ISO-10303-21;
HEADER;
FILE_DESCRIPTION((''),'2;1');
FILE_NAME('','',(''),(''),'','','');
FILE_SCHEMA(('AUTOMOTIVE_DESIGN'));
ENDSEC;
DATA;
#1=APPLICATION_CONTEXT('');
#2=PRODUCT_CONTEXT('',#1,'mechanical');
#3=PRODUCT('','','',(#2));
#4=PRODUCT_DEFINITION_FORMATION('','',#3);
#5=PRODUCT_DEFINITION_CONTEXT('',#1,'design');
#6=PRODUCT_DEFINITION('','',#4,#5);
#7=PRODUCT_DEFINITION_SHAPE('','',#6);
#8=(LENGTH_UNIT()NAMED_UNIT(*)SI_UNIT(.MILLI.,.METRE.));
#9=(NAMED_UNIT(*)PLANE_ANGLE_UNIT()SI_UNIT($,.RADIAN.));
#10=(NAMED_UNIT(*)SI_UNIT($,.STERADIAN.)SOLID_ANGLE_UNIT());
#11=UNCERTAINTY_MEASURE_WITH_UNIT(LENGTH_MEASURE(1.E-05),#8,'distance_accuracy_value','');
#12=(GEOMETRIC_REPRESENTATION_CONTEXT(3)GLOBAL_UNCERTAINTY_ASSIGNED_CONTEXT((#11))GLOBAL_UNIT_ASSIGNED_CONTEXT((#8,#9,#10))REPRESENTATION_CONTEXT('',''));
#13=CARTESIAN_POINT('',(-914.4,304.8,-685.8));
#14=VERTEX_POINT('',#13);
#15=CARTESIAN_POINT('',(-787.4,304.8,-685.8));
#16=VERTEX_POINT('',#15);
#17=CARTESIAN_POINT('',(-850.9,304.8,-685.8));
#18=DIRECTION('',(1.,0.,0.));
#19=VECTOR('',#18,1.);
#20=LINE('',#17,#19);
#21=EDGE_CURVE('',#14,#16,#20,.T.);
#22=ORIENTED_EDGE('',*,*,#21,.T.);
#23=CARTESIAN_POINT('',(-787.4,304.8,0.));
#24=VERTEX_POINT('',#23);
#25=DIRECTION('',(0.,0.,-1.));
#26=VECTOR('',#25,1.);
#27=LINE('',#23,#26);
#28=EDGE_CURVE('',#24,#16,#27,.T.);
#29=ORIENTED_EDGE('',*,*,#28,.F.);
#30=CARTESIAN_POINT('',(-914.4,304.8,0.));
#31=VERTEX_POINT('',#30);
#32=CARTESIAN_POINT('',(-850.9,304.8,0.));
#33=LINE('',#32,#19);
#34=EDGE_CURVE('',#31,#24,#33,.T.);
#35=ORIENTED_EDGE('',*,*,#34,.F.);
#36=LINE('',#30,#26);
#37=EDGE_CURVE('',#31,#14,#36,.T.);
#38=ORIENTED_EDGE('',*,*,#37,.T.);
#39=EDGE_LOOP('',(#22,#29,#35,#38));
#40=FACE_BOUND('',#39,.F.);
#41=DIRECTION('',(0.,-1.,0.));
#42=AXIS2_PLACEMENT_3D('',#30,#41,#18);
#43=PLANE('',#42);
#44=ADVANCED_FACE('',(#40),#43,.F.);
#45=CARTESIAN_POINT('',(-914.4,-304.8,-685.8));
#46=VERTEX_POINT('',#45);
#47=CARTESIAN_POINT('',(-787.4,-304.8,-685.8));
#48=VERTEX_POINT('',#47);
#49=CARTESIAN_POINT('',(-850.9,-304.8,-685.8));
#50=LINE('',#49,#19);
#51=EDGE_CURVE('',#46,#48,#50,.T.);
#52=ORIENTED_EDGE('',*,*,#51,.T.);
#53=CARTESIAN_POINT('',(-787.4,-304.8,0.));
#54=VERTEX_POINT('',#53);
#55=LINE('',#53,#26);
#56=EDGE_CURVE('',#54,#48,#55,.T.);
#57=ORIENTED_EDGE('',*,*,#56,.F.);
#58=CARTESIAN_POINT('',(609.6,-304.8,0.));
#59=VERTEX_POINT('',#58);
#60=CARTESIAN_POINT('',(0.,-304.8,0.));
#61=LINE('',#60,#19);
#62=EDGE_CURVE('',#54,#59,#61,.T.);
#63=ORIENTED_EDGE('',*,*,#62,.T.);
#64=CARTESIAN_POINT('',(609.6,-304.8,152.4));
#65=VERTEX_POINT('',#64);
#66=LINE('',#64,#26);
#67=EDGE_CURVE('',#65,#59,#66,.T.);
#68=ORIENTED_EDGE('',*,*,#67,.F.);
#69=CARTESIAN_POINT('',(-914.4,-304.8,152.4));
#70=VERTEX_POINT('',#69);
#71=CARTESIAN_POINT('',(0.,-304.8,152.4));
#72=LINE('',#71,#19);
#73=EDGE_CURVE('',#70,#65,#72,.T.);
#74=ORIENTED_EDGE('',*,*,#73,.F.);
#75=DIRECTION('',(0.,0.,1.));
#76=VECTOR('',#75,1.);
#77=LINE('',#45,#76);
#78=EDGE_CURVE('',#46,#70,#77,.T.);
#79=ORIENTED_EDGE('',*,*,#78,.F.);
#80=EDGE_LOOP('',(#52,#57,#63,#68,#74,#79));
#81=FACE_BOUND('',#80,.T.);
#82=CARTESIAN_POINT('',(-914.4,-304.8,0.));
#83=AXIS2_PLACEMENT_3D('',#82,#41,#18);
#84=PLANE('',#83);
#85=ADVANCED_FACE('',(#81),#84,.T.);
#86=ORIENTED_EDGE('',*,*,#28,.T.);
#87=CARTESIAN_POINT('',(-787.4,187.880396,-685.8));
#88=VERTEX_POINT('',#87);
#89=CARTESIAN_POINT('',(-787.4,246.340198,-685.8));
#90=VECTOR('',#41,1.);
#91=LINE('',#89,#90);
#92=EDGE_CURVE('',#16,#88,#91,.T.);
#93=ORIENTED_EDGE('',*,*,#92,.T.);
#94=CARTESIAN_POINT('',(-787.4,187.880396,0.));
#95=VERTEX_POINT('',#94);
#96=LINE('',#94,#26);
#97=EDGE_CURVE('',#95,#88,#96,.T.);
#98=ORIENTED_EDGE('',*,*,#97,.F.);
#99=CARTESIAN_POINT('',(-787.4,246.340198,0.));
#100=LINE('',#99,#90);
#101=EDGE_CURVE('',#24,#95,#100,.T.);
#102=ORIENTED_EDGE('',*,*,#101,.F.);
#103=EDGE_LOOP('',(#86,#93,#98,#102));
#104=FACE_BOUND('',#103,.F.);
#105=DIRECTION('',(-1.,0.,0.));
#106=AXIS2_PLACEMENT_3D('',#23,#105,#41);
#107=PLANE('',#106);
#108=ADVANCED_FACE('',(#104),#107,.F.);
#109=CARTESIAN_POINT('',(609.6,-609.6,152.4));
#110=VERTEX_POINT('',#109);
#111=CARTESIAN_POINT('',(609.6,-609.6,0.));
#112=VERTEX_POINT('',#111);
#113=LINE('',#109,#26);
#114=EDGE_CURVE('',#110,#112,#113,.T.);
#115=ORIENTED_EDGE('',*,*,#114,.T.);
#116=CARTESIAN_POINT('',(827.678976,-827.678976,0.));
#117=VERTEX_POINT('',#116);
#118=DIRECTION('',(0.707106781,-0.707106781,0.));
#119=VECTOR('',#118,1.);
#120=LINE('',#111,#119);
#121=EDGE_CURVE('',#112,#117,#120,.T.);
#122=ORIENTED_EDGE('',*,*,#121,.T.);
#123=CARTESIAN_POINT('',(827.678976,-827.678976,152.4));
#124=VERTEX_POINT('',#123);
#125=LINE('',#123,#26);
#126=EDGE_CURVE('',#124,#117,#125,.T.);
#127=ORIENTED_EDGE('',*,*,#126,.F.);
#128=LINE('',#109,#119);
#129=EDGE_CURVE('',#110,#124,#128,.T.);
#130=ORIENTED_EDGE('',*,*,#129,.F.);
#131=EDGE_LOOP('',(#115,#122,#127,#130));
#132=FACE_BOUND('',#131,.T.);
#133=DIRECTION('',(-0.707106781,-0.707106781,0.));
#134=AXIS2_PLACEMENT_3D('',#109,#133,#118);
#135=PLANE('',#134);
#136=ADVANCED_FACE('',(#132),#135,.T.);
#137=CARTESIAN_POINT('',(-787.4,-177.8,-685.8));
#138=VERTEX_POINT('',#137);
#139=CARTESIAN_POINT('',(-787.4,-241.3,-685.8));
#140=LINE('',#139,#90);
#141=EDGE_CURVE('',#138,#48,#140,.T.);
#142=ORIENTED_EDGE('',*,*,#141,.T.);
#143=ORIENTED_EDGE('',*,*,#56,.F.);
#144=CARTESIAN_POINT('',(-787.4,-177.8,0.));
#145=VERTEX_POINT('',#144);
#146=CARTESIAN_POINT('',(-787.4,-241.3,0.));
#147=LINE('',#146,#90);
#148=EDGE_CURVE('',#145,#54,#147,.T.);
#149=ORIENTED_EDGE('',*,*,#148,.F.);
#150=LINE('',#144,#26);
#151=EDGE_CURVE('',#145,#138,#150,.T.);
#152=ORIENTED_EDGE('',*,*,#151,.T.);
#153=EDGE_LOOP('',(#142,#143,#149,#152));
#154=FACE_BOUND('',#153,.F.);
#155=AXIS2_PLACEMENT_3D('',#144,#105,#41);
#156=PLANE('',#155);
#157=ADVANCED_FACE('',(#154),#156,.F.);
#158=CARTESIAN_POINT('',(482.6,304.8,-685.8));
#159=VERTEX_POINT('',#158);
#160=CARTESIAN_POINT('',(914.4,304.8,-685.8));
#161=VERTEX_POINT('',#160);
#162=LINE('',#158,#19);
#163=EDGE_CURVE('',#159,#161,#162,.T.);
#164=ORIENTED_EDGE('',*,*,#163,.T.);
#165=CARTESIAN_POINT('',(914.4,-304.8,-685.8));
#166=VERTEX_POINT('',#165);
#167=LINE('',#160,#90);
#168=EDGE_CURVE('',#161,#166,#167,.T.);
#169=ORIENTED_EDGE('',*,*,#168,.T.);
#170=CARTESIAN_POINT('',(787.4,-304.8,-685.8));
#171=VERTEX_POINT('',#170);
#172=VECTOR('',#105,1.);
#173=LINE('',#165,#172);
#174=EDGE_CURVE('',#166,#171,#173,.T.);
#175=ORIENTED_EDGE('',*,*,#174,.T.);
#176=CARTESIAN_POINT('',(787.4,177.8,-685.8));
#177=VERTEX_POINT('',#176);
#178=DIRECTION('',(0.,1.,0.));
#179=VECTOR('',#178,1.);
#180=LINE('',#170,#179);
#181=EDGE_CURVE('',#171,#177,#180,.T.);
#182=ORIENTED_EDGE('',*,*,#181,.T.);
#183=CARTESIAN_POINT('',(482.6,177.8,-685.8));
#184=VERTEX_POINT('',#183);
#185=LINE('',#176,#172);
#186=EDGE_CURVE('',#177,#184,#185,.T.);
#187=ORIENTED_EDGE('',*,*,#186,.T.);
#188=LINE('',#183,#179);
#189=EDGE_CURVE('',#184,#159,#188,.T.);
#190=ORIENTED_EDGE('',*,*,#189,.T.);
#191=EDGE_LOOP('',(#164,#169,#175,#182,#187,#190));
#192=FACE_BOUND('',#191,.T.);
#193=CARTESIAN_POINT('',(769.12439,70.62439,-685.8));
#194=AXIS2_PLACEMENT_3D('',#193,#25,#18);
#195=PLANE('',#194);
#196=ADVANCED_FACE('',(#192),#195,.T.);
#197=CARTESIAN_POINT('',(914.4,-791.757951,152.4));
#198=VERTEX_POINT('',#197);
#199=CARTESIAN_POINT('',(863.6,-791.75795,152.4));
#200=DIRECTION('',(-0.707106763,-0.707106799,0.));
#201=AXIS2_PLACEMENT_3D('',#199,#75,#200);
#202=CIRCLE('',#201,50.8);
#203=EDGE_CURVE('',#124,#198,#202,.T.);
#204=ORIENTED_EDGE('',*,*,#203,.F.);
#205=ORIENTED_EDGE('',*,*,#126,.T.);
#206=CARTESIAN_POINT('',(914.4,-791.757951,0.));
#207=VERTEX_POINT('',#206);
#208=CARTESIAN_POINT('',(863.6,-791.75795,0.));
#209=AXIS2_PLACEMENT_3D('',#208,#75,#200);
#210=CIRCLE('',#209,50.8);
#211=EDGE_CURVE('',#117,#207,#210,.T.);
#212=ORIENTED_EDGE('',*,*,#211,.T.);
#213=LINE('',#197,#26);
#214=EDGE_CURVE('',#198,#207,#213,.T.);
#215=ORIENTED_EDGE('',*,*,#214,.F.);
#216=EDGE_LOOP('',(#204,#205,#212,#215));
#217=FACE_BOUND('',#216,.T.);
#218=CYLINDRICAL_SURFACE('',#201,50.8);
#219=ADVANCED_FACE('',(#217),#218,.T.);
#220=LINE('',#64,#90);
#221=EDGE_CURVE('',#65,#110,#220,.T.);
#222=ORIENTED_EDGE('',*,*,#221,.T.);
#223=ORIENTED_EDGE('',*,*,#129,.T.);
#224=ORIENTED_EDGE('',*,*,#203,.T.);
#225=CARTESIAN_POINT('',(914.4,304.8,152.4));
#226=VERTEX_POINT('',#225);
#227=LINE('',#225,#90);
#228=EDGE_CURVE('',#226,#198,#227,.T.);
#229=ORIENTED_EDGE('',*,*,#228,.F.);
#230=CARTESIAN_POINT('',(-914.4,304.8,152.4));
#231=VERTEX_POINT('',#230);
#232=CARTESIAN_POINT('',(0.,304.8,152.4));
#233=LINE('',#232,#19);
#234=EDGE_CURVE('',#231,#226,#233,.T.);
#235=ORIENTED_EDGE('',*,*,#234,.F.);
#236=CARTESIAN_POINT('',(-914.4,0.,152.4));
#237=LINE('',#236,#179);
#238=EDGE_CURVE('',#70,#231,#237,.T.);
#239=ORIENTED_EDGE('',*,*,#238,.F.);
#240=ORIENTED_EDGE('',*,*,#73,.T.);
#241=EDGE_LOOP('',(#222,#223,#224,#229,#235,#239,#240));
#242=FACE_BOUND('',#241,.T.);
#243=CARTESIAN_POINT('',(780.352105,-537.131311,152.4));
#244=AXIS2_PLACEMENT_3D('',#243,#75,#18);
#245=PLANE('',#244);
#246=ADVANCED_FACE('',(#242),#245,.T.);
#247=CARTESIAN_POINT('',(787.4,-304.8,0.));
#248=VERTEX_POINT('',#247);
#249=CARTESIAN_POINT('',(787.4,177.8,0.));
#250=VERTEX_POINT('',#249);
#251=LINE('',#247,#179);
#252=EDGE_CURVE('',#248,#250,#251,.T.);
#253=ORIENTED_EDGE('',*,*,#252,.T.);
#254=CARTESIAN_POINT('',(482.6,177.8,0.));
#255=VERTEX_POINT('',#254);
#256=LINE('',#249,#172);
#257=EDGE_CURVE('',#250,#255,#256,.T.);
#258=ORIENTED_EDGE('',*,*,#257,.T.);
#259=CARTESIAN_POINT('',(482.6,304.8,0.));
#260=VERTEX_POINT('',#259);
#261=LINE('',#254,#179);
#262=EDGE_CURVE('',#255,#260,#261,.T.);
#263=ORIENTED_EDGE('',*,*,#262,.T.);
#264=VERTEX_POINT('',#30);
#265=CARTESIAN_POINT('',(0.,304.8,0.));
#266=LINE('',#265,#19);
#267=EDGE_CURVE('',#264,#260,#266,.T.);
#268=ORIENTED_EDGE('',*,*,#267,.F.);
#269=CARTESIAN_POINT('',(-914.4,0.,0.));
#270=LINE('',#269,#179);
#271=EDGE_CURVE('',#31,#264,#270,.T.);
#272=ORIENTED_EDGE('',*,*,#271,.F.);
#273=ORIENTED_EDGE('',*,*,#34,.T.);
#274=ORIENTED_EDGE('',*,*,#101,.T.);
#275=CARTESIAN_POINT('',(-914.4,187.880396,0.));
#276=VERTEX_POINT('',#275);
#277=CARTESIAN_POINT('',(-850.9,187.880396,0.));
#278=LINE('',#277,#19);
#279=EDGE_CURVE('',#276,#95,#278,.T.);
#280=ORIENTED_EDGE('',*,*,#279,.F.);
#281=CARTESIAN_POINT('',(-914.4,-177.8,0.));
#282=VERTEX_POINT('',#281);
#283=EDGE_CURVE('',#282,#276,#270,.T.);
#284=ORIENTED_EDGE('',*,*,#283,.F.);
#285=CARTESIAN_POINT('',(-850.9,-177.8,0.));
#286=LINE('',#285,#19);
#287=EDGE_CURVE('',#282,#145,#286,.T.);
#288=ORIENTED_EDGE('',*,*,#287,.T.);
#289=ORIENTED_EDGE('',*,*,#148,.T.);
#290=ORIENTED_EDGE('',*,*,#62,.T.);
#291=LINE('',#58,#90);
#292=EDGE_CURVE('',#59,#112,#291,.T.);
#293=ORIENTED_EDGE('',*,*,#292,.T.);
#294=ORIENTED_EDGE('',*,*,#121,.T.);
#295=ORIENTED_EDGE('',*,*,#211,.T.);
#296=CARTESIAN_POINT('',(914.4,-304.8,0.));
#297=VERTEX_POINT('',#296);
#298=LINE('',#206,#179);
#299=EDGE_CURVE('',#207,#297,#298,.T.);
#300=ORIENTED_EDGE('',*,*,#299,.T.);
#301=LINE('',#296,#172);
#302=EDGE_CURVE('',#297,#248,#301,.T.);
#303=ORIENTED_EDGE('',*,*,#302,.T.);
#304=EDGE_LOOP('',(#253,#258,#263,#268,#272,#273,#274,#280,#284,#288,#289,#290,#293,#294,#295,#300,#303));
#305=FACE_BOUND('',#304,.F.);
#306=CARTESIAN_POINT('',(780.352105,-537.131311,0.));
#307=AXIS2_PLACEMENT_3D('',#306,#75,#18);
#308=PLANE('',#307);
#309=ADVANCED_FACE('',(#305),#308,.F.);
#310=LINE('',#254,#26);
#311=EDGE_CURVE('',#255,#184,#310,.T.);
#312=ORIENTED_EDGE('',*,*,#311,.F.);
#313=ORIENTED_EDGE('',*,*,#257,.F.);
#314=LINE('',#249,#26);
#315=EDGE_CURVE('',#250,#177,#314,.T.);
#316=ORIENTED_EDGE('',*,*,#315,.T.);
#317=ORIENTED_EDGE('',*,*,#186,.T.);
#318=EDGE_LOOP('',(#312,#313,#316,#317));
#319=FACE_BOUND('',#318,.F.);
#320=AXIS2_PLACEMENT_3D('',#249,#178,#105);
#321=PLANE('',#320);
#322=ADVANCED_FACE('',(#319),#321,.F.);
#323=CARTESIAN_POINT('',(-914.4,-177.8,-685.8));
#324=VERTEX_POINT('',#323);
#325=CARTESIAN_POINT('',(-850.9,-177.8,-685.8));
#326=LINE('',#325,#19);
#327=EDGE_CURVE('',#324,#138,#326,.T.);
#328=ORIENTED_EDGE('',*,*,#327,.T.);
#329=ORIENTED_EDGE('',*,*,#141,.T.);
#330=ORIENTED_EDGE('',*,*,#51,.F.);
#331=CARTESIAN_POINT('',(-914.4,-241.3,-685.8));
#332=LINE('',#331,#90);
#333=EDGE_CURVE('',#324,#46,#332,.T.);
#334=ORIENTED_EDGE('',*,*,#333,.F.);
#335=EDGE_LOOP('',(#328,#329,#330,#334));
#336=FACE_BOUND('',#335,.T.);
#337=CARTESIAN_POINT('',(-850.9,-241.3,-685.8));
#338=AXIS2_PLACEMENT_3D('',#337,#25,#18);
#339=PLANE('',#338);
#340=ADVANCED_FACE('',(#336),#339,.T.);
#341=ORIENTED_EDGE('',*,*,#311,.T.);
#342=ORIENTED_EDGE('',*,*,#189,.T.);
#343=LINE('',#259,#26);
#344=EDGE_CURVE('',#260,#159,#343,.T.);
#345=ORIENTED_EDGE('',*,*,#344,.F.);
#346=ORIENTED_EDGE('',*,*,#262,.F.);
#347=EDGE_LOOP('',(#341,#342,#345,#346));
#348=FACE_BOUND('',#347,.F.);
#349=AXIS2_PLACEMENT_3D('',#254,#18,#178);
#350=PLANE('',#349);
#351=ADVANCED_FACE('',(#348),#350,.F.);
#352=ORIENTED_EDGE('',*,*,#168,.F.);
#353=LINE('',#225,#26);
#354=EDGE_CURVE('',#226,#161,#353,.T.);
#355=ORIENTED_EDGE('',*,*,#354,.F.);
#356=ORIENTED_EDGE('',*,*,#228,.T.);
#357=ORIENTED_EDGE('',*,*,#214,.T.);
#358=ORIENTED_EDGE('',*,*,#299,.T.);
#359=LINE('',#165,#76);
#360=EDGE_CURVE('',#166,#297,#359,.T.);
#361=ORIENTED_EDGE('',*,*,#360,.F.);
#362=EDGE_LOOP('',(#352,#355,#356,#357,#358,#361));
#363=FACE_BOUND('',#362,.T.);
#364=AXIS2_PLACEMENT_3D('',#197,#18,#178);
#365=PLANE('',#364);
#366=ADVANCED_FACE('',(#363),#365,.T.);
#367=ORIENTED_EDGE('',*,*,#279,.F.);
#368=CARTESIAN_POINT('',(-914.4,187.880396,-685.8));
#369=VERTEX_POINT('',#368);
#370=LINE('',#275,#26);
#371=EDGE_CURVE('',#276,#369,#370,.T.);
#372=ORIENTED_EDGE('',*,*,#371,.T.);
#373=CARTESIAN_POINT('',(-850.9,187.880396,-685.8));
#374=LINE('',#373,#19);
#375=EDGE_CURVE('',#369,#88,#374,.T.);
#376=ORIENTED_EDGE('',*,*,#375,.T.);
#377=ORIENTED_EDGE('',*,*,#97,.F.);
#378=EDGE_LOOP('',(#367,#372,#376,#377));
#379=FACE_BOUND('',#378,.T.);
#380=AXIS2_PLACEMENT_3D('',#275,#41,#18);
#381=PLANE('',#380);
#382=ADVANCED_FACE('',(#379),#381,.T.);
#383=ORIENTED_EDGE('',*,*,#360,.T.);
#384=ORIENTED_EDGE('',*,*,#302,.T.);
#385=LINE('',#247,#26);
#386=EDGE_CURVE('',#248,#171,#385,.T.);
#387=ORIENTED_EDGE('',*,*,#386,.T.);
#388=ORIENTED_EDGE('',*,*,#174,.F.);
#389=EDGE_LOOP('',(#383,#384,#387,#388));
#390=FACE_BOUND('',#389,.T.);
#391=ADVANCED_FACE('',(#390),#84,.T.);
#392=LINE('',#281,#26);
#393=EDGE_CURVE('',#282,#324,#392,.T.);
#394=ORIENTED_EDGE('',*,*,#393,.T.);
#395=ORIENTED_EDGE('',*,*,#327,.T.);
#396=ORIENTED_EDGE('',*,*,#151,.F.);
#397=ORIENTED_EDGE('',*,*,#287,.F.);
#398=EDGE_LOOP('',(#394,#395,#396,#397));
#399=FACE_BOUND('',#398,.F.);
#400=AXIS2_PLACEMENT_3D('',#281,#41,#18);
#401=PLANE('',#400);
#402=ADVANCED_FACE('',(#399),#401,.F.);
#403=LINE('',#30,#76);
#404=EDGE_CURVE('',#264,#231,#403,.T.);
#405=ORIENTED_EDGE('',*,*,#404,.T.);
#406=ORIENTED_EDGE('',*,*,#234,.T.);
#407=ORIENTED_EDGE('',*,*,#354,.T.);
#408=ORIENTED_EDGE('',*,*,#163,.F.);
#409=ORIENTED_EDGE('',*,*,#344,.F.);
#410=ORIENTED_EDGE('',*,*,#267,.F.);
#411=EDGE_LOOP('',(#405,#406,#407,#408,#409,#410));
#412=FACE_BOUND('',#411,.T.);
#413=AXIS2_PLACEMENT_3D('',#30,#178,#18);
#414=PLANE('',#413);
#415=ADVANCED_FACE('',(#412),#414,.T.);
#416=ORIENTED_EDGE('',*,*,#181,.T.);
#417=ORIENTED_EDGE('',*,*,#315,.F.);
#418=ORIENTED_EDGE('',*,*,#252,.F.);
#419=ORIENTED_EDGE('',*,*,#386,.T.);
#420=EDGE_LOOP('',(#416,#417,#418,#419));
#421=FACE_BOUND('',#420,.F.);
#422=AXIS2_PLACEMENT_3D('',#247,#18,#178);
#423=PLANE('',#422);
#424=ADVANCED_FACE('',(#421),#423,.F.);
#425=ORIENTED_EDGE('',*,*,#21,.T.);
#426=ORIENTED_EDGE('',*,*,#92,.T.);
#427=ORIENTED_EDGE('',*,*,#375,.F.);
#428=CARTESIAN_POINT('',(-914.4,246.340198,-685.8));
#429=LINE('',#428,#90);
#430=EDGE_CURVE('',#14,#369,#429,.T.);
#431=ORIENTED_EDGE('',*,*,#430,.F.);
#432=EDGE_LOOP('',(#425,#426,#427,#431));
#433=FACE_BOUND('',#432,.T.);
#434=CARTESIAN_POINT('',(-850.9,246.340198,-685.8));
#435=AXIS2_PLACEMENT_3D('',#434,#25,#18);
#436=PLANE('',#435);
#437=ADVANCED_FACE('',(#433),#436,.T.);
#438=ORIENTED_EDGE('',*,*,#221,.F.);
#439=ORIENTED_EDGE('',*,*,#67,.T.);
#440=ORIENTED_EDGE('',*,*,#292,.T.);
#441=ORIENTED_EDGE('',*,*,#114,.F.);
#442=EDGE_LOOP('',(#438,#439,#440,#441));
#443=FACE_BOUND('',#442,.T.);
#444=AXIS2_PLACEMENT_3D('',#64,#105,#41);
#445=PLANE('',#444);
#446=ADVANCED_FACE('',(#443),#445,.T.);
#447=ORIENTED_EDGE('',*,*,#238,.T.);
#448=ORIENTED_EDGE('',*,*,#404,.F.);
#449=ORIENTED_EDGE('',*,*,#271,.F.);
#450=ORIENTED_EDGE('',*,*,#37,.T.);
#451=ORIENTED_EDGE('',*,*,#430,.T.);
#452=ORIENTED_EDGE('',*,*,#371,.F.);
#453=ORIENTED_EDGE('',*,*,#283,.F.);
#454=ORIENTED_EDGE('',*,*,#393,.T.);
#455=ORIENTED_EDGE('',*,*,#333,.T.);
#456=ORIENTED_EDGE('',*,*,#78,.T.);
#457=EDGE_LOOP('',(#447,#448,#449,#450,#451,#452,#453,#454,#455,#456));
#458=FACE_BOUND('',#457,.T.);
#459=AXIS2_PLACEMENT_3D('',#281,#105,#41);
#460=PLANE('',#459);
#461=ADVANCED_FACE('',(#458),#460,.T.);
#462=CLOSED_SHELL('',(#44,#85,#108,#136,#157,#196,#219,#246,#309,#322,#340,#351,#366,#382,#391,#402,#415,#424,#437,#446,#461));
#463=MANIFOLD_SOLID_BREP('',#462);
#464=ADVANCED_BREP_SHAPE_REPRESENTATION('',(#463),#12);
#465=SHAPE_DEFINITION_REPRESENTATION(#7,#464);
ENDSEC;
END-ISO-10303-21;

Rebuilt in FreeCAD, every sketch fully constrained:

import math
import FreeCAD as App
import Part
import Sketcher
from FreeCAD import Vector
Q = App.Units.Quantity


def add_polygon(sketch, points):
    """Adds a closed chain of lines whose ends are joined by coincident constraints."""
    first, n = sketch.GeometryCount, len(points)
    for a, b in zip(points, points[1:] + points[:1]):
        sketch.addGeometry(Part.LineSegment(App.Vector(*a, 0), App.Vector(*b, 0)), False)
    for i in range(n):
        sketch.addConstraint(Sketcher.Constraint("Coincident", first + i, 2, first + (i + 1) % n, 1))

doc = App.newDocument("Part")
body = doc.addObject("PartDesign::Body", "Body")

# Sketch on XY plane
sketch1 = body.newObject("Sketcher::SketchObject", "Sketch")
sketch1.AttachmentSupport = (doc.getObject("XY_Plane"), [""])
sketch1.MapMode = "FlatFace"
add_polygon(sketch1, [(-914.4, 304.8), (-914.4, -304.8), (914.4, -304.8), (914.4, 304.8)])  # lines 0-3
sketch1.addConstraint([
    Sketcher.Constraint("Vertical", 0),
    Sketcher.Constraint("Horizontal", 1),
    Sketcher.Constraint("Vertical", 2),
    Sketcher.Constraint("Horizontal", 3),
    Sketcher.Constraint("Symmetric", 0, 2, 2, 2, -1, 1),
    Sketcher.Constraint("DistanceX", 1, 1, 1, 2, Q("72 in")),
    Sketcher.Constraint("DistanceY", 0, 2, 0, 1, Q("24 in")),
])
pad1 = body.newObject("PartDesign::Pad", "Pad")
pad1.Profile = sketch1
pad1.Length = Q("6 in")

# Sketch on XY plane
sketch2 = body.newObject("Sketcher::SketchObject", "Sketch001")
sketch2.AttachmentSupport = (doc.getObject("XY_Plane"), [""])
sketch2.MapMode = "FlatFace"
add_polygon(sketch2, [(-914.4, -304.8), (-914.4, -177.8), (-787.4, -177.8), (-787.4, -304.8)])  # lines 0-3
add_polygon(sketch2, [(-914.4, 187.880396), (-914.4, 304.8), (-787.4, 304.8), (-787.4, 187.880396)])  # lines 4-7
add_polygon(sketch2, [(914.4, 304.8), (914.4, -304.8), (787.4, -304.8), (787.4, 177.8), (482.6, 177.8), (482.6, 304.8)])  # lines 8-13
sketch2.addConstraint([
    Sketcher.Constraint("Vertical", 0),
    Sketcher.Constraint("Horizontal", 1),
    Sketcher.Constraint("Vertical", 2),
    Sketcher.Constraint("Horizontal", 3),
    Sketcher.Constraint("Vertical", 4),
    Sketcher.Constraint("Horizontal", 5),
    Sketcher.Constraint("Vertical", 6),
    Sketcher.Constraint("Horizontal", 7),
    Sketcher.Constraint("Vertical", 8),
    Sketcher.Constraint("Horizontal", 9),
    Sketcher.Constraint("Vertical", 10),
    Sketcher.Constraint("Horizontal", 11),
    Sketcher.Constraint("Vertical", 12),
    Sketcher.Constraint("Horizontal", 13),
    Sketcher.Constraint("Symmetric", 4, 2, 8, 2, -1, 1),
    Sketcher.Constraint("Symmetric", 1, 2, 10, 2, -1, 1),
    Sketcher.Constraint("Symmetric", 3, 2, 13, 2, -1, 1),
    Sketcher.Constraint("Symmetric", 2, 2, 5, 2, -1),
    Sketcher.Constraint("Equal", 9, 0),
    Sketcher.Constraint("DistanceX", 1, 1, 1, 2, Q("5 in")),
    Sketcher.Constraint("DistanceX", 11, 2, 11, 1, Q("12 in")),
    Sketcher.Constraint("DistanceY", 8, 2, 8, 1, Q("24 in")),
    Sketcher.Constraint("DistanceX", 0, 2, -1, 1, Q("36 in")),
    Sketcher.Constraint("DistanceY", 4, 1, 4, 2, Q("116.919603 mm")),
])
pad2 = body.newObject("PartDesign::Pad", "Pad001")
pad2.Profile = sketch2
pad2.Length = Q("27 in")
pad2.Reversed = True

# Sketch on XY plane
sketch3 = body.newObject("Sketcher::SketchObject", "Sketch002")
sketch3.AttachmentSupport = (doc.getObject("XY_Plane"), [""])
sketch3.MapMode = "FlatFace"
sketch3.AttachmentOffset = App.Placement(Vector(0, 0, 6 * 25.4), App.Rotation())
sketch3.addGeometry([
    Part.LineSegment(Vector(914.4, -791.757951, 0), Vector(914.4, -304.8, 0)),  # 0
    Part.LineSegment(Vector(914.4, -304.8, 0), Vector(609.6, -304.8, 0)),  # 1
    Part.LineSegment(Vector(609.6, -304.8, 0), Vector(609.6, -609.6, 0)),  # 2
    Part.LineSegment(Vector(609.6, -609.6, 0), Vector(827.678976, -827.678976, 0)),  # 3
    Part.ArcOfCircle(Part.Circle(Vector(863.6, -791.75795, 0), Vector(0, 0, 1), 50.8), math.radians(-134.999999), math.radians(-0.000001)),  # 4
], False)
sketch3.addConstraint([
    Sketcher.Constraint("Coincident", 0, 2, 1, 1),
    Sketcher.Constraint("Coincident", 1, 2, 2, 1),
    Sketcher.Constraint("Coincident", 2, 2, 3, 1),
    Sketcher.Constraint("Tangent", 3, 2, 4, 1),
    Sketcher.Constraint("Tangent", 4, 2, 0, 1),
    Sketcher.Constraint("Vertical", 0),
    Sketcher.Constraint("Horizontal", 1),
    Sketcher.Constraint("Vertical", 2),
    Sketcher.Constraint("Equal", 1, 2),
    Sketcher.Constraint("Radius", 4, Q("2 in")),
    Sketcher.Constraint("DistanceX", 1, 2, 1, 1, Q("12 in")),
    Sketcher.Constraint("DistanceX", -1, 1, 4, 3, Q("34 in")),
    Sketcher.Constraint("DistanceY", 0, 2, -1, 1, Q("12 in")),
    Sketcher.Constraint("Angle", 3, Q("-45 deg")),
])
pad3 = body.newObject("PartDesign::Pad", "Pad002")
pad3.Profile = sketch3
pad3.Length = Q("6 in")
pad3.Reversed = True

doc.recompute()
